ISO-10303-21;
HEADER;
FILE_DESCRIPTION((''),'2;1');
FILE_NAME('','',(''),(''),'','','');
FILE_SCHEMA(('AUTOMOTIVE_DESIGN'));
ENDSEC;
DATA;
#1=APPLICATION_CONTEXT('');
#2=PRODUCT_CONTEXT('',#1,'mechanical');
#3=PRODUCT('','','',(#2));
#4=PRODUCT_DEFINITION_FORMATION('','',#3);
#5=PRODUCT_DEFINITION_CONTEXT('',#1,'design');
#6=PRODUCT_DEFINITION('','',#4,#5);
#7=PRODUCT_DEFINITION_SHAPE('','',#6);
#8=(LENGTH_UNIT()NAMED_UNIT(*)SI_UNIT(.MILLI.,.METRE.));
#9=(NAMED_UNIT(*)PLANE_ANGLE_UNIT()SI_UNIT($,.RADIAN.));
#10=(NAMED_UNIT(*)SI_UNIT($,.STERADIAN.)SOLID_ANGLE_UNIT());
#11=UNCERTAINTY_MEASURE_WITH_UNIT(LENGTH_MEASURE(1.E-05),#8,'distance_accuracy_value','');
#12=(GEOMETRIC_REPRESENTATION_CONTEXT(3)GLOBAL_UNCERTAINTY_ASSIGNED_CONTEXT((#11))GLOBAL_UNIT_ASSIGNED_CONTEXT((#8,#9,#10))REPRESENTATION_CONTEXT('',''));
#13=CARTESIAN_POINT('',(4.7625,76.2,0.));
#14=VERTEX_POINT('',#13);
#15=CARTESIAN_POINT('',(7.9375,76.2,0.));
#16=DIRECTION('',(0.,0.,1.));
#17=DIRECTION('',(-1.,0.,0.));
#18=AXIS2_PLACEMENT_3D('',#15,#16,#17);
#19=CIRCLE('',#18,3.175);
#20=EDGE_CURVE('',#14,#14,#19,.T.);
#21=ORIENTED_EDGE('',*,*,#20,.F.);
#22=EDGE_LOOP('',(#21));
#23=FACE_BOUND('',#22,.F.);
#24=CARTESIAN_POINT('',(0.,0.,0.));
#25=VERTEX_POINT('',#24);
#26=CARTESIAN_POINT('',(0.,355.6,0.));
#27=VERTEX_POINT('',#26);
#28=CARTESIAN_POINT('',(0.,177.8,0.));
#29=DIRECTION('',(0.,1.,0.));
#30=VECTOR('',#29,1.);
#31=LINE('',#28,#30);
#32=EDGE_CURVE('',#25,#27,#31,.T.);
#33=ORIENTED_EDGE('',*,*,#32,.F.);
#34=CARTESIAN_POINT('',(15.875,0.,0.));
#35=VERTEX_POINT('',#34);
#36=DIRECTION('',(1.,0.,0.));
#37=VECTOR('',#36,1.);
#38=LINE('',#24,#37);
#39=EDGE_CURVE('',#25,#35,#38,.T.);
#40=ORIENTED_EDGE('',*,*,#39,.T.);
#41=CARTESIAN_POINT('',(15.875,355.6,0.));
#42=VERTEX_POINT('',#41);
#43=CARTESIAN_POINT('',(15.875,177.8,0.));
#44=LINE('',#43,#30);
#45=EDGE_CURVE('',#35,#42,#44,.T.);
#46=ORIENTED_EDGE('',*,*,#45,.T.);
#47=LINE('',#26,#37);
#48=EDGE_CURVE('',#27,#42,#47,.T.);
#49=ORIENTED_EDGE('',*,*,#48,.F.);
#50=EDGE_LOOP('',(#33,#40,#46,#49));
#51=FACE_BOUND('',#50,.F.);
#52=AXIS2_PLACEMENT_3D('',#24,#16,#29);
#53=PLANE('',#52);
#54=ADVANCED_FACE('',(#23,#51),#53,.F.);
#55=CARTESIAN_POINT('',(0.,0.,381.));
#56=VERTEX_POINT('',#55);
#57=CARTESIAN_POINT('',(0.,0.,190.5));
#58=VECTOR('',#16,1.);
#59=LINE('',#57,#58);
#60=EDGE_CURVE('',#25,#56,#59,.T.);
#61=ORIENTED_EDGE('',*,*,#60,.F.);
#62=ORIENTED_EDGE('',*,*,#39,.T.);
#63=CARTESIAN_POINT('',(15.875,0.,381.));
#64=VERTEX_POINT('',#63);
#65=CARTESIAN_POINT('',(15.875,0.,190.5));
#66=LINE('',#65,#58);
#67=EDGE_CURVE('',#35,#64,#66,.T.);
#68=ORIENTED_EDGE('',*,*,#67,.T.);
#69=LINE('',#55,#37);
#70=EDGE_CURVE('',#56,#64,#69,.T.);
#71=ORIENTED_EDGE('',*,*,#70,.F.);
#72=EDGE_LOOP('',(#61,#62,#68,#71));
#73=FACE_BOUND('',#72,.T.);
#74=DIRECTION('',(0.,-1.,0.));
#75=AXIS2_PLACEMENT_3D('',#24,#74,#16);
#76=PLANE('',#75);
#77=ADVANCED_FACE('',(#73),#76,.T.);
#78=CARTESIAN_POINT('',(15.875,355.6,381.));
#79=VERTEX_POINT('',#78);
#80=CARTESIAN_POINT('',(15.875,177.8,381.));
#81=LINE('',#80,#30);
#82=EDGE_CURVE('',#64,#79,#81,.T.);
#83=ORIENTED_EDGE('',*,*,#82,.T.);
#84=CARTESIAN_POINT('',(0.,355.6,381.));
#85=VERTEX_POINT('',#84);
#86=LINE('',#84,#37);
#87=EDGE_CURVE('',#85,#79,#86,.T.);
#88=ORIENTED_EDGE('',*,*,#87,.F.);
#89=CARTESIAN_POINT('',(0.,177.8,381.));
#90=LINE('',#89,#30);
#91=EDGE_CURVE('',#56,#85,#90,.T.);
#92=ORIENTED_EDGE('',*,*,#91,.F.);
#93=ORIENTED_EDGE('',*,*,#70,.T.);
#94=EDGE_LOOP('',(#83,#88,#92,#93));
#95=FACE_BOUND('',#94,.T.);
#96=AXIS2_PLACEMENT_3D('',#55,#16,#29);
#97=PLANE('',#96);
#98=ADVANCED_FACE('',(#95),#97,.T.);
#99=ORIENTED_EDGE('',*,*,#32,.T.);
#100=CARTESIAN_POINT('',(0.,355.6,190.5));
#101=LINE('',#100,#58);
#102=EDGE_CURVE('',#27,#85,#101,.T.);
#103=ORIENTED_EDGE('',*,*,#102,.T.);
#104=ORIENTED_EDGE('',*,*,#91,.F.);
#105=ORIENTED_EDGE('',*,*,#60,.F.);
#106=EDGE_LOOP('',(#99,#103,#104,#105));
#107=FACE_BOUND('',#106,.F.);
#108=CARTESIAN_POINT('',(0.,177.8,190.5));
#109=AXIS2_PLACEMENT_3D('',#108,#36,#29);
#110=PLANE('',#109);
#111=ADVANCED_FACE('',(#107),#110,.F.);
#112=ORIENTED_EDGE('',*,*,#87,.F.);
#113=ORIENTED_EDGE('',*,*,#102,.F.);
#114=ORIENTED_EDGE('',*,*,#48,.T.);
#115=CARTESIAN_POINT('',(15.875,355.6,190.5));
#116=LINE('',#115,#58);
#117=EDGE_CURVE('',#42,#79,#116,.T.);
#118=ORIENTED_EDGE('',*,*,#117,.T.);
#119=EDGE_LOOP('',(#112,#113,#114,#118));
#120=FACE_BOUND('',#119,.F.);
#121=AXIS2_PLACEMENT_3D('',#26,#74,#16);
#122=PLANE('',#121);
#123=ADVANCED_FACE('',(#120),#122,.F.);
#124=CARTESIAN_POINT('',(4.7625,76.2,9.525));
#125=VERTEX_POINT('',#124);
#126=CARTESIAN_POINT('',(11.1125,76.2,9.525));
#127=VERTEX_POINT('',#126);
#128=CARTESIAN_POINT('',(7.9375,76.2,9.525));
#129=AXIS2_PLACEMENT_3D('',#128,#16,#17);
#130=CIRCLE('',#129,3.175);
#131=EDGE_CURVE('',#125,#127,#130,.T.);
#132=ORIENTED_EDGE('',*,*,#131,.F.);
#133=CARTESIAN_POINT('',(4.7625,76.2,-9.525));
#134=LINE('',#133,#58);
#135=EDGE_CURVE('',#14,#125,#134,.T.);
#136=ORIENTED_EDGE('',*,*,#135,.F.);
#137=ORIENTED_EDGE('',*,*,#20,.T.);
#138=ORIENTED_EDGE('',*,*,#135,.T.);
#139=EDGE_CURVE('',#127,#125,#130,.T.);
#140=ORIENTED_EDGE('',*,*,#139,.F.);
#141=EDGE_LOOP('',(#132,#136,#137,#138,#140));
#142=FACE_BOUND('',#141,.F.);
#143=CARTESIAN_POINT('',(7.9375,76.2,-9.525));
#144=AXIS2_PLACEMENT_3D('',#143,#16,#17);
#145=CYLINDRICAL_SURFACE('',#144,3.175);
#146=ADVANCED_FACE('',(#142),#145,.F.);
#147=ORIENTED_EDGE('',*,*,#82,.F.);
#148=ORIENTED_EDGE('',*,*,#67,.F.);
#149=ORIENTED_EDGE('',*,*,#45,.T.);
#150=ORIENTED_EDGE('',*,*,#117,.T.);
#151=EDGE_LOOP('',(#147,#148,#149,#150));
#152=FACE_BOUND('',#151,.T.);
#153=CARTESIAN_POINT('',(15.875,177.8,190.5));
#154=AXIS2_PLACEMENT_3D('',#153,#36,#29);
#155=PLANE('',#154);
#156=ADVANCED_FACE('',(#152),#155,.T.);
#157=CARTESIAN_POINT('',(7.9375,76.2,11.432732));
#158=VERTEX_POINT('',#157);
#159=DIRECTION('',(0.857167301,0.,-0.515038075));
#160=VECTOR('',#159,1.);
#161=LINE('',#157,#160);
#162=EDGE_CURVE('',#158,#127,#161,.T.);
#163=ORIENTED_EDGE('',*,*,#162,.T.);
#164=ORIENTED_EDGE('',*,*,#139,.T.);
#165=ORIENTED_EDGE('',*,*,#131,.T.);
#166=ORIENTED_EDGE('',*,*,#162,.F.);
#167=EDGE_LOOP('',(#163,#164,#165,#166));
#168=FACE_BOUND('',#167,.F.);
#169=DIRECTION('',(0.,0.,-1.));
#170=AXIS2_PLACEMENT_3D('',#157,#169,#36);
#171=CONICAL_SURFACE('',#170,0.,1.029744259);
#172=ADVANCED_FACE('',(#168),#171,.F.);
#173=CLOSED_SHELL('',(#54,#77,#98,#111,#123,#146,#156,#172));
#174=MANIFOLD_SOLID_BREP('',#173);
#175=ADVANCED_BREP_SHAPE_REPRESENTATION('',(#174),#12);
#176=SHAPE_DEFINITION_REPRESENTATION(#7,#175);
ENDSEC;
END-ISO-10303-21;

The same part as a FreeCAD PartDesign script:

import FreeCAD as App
import Part
import Sketcher
from FreeCAD import Vector
Q = App.Units.Quantity


def add_polygon(sketch, points):
    """Adds a closed chain of lines whose ends are joined by coincident constraints."""
    first, n = sketch.GeometryCount, len(points)
    for a, b in zip(points, points[1:] + points[:1]):
        sketch.addGeometry(Part.LineSegment(App.Vector(*a, 0), App.Vector(*b, 0)), False)
    for i in range(n):
        sketch.addConstraint(Sketcher.Constraint("Coincident", first + i, 2, first + (i + 1) % n, 1))

doc = App.newDocument("Part")
body = doc.addObject("PartDesign::Body", "Body")

sketch1 = doc.addObject("Sketcher::SketchObject", "Sketch")
body.addObject(sketch1)
sketch1.AttachmentSupport = (doc.YZ_Plane, [""])
sketch1.MapMode = "FlatFace"
add_polygon(sketch1, [(0, 381), (0, 0), (355.6, 0), (355.6, 381)])
sketch1.addConstraint([
    Sketcher.Constraint("Vertical", 0),
    Sketcher.Constraint("Horizontal", 1),
    Sketcher.Constraint("Vertical", 2),
    Sketcher.Constraint("Horizontal", 3),
    Sketcher.Constraint("Coincident", 0, 2, -1, 1),
    Sketcher.Constraint("DistanceX", 1, 1, 1, 2, Q("14 in")),
    Sketcher.Constraint("DistanceY", 0, 2, 0, 1, Q("15 in")),
])
pad1 = doc.addObject("PartDesign::Pad", "Pad")
body.addObject(pad1)
pad1.Profile = sketch1
pad1.Length = Q("0.625 in")

sketch2 = doc.addObject("Sketcher::SketchObject", "Sketch001")
body.addObject(sketch2)
sketch2.AttachmentSupport = (doc.XY_Plane, [""])
sketch2.MapMode = "FlatFace"
sketch2.addGeometry(Part.Circle(Vector(7.9375, 76.2, 0), Vector(0, 0, 1), 3.175), False)
sketch2.addConstraint([
    Sketcher.Constraint("Diameter", 0, Q("0.25 in")),
    Sketcher.Constraint("DistanceY", -1, 1, 0, 3, Q("3 in")),
    Sketcher.Constraint("DistanceX", -1, 1, 0, 3, Q("0.3125 in")),
])
doc.recompute()
hole = doc.addObject("PartDesign::Hole", "Hole")
body.addObject(hole)
hole.Profile = sketch2
hole.ThreadType = "None"
hole.Diameter = Q("0.25 in")
hole.DepthType = "Dimension"
hole.Depth = Q("0.375 in")
hole.DrillPoint = "Angled"
hole.DrillPointAngle = 118
hole.Reversed = True

doc.recompute()
